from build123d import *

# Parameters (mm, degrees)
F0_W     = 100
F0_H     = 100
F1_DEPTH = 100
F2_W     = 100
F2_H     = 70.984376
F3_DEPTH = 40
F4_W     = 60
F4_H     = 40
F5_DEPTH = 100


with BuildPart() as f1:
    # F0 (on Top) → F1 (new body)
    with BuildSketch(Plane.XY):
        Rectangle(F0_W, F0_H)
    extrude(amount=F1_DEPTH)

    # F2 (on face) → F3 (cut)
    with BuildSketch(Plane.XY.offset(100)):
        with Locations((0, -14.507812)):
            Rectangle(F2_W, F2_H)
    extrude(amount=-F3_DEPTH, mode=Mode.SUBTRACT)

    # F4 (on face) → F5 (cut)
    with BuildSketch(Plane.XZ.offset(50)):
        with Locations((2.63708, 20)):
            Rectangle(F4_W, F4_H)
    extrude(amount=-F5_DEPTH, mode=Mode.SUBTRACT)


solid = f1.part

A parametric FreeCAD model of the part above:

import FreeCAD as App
import Part
import Sketcher
from FreeCAD import Vector


def add_polygon(sketch, points):
    """Adds a closed chain of lines whose ends are joined by coincident constraints."""
    first, n = sketch.GeometryCount, len(points)
    for a, b in zip(points, points[1:] + points[:1]):
        sketch.addGeometry(Part.LineSegment(App.Vector(*a, 0), App.Vector(*b, 0)), False)
    for i in range(n):
        sketch.addConstraint(Sketcher.Constraint("Coincident", first + i, 2, first + (i + 1) % n, 1))

doc = App.newDocument("Part")
body = doc.addObject("PartDesign::Body", "Body")

# Sketch on XY plane
sketch1 = doc.addObject("Sketcher::SketchObject", "Sketch")
body.addObject(sketch1)
sketch1.AttachmentSupport = (doc.XY_Plane, [""])
sketch1.MapMode = "FlatFace"
add_polygon(sketch1, [(-50, 50), (-50, -50), (50, -50), (50, 50)])  # lines 0-3
sketch1.addConstraint(Sketcher.Constraint("Vertical", 0))
sketch1.addConstraint(Sketcher.Constraint("Horizontal", 1))
sketch1.addConstraint(Sketcher.Constraint("Vertical", 2))
sketch1.addConstraint(Sketcher.Constraint("Horizontal", 3))
sketch1.addConstraint(Sketcher.Constraint("Symmetric", 0, 2, 2, 2, -1, 1))
sketch1.addConstraint(Sketcher.Constraint("Equal", 3, 0))
sketch1.addConstraint(Sketcher.Constraint("DistanceX", 1, 1, 1, 2, 100.0))
pad1 = doc.addObject("PartDesign::Pad", "Pad")
body.addObject(pad1)
pad1.Profile = sketch1
pad1.Length = 100

# Sketch on XY plane
sketch2 = doc.addObject("Sketcher::SketchObject", "Sketch001")
body.addObject(sketch2)
sketch2.AttachmentSupport = (doc.XY_Plane, [""])
sketch2.MapMode = "FlatFace"
sketch2.AttachmentOffset = App.Placement(Vector(0, 0, 100), App.Rotation())
add_polygon(sketch2, [(-50, 20.984376), (-50, -50), (50, -50), (50, 20.984376)])  # lines 0-3
sketch2.addConstraint(Sketcher.Constraint("Vertical", 0))
sketch2.addConstraint(Sketcher.Constraint("Horizontal", 1))
sketch2.addConstraint(Sketcher.Constraint("Vertical", 2))
sketch2.addConstraint(Sketcher.Constraint("Horizontal", 3))
sketch2.addConstraint(Sketcher.Constraint("DistanceX", 1, 1, 1, 2, 100.0))
sketch2.addConstraint(Sketcher.Constraint("DistanceX", 0, 2, -1, 1, 50.0))
sketch2.addConstraint(Sketcher.Constraint("DistanceY", 0, 2, -1, 1, 50.0))
sketch2.addConstraint(Sketcher.Constraint("DistanceY", 0, 2, 0, 1, 70.984376))
pocket1 = doc.addObject("PartDesign::Pocket", "Pocket")
body.addObject(pocket1)
pocket1.Profile = sketch2
pocket1.Length = 40

# Sketch on XZ plane
sketch3 = doc.addObject("Sketcher::SketchObject", "Sketch002")
body.addObject(sketch3)
sketch3.AttachmentSupport = (doc.XZ_Plane, [""])
sketch3.MapMode = "FlatFace"
sketch3.AttachmentOffset = App.Placement(Vector(0, 0, 50), App.Rotation())
add_polygon(sketch3, [(-27.36292, 40), (-27.36292, 0), (32.63708, 0), (32.63708, 40)])  # lines 0-3
sketch3.addConstraint(Sketcher.Constraint("Vertical", 0))
sketch3.addConstraint(Sketcher.Constraint("Horizontal", 1))
sketch3.addConstraint(Sketcher.Constraint("Vertical", 2))
sketch3.addConstraint(Sketcher.Constraint("Horizontal", 3))
sketch3.addConstraint(Sketcher.Constraint("PointOnObject", 0, 2, -1))
sketch3.addConstraint(Sketcher.Constraint("DistanceX", 1, 1, 1, 2, 60.0))
sketch3.addConstraint(Sketcher.Constraint("DistanceY", 0, 2, 0, 1, 40.0))
sketch3.addConstraint(Sketcher.Constraint("DistanceX", 0, 2, -1, 1, 27.36292))
pocket2 = doc.addObject("PartDesign::Pocket", "Pocket001")
body.addObject(pocket2)
pocket2.Profile = sketch3
pocket2.Length = 100

doc.recompute()
